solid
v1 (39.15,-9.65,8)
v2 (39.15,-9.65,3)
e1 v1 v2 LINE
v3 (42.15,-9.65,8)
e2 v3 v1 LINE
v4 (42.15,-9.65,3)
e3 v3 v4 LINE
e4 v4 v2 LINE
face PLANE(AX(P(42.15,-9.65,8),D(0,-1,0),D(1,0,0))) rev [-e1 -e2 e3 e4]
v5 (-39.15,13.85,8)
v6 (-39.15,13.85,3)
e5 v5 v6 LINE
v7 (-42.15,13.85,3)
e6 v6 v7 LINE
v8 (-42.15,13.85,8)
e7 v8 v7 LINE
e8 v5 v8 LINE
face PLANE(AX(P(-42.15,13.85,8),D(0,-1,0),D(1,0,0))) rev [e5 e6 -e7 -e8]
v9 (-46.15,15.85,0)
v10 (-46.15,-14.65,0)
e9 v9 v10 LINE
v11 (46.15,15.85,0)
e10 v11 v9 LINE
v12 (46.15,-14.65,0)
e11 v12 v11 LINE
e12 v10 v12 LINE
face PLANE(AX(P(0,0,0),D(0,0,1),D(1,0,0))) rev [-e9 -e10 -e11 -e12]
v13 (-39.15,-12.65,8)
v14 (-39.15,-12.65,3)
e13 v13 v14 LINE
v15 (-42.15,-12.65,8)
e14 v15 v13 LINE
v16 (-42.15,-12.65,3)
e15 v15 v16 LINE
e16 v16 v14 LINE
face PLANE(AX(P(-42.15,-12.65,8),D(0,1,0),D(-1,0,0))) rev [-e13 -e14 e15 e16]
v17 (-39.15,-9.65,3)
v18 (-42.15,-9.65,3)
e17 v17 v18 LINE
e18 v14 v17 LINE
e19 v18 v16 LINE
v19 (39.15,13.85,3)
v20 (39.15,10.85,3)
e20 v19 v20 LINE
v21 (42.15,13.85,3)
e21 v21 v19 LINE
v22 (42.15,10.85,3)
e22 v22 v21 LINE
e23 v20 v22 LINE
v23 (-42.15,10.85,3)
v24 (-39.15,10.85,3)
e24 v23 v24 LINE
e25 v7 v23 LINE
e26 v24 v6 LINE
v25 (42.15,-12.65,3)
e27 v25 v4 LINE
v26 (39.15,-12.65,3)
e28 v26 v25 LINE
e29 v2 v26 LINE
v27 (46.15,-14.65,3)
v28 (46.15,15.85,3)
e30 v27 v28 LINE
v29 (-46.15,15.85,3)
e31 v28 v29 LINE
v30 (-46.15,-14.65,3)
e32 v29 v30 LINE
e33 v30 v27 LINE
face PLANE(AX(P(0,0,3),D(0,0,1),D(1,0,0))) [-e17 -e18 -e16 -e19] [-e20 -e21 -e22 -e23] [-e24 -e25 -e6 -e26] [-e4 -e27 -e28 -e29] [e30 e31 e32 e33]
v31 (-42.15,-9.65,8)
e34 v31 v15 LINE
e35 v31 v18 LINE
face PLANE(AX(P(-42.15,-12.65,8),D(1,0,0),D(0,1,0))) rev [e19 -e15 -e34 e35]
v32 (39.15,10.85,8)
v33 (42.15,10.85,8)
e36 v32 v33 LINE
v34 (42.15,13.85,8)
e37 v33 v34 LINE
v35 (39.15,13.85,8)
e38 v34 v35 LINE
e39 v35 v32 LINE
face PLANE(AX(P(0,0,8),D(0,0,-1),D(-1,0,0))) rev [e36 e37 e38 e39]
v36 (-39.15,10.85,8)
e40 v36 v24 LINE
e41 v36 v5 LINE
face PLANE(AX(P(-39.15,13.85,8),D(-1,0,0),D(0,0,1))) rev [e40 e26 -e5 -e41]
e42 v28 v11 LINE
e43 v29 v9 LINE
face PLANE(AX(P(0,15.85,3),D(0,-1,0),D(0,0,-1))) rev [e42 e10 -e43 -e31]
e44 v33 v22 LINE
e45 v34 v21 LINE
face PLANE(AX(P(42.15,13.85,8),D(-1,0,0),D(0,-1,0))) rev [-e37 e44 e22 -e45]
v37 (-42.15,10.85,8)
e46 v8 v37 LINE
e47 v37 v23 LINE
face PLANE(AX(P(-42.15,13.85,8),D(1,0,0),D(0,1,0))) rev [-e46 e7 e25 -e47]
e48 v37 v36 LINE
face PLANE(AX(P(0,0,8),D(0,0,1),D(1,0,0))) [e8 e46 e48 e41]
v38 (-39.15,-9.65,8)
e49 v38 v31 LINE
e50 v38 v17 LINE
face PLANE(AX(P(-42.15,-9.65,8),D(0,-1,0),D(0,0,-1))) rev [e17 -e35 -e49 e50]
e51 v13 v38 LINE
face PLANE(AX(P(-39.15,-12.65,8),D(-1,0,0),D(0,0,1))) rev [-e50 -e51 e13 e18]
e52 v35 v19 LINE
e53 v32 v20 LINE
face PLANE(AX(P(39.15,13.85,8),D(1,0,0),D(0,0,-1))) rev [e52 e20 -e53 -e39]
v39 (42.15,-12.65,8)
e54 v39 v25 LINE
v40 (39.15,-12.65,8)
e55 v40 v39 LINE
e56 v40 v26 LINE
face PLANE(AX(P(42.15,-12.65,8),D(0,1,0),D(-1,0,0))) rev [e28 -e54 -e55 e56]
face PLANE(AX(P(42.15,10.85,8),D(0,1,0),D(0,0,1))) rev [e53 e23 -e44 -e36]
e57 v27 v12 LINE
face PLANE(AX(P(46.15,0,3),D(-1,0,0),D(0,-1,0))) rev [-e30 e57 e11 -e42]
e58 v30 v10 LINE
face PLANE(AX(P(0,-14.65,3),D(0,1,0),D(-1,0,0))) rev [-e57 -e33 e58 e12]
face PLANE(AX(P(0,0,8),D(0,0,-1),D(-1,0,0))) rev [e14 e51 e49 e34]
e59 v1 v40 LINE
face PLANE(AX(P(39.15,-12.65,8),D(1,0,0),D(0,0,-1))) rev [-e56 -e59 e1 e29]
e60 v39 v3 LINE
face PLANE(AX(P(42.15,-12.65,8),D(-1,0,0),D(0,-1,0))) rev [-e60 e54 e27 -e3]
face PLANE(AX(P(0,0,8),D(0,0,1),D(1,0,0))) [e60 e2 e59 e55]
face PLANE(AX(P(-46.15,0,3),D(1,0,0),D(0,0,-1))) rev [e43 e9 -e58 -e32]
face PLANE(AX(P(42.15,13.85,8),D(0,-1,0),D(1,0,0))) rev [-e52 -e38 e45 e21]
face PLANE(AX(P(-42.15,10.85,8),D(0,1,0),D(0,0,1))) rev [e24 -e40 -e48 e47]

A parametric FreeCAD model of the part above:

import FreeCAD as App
import Part
import Sketcher

V = App.Vector
Q = App.Units.Quantity

doc = App.newDocument("Part")
body = doc.addObject("PartDesign::Body", "Body")

sketch1 = body.newObject("Sketcher::SketchObject", "Sketch")
sketch1.AttachmentSupport = (doc.getObject("XY_Plane"), [""])
sketch1.MapMode = "FlatFace"
sketch1.addGeometry([
    Part.LineSegment(V(-46, 16, 0), V(-46, -15, 0)),
    Part.LineSegment(V(-46, -15, 0), V(46, -15, 0)),
    Part.LineSegment(V(46, -15, 0), V(46, 16, 0)),
    Part.LineSegment(V(46, 16, 0), V(-46, 16, 0)),
], False)
sketch1.addConstraint([
    Sketcher.Constraint("Coincident", 0, 2, 1, 1),
    Sketcher.Constraint("Coincident", 1, 2, 2, 1),
    Sketcher.Constraint("Coincident", 2, 2, 3, 1),
    Sketcher.Constraint("Coincident", 3, 2, 0, 1),
    Sketcher.Constraint("Vertical", 0),
    Sketcher.Constraint("Horizontal", 1),
    Sketcher.Constraint("Vertical", 2),
    Sketcher.Constraint("Horizontal", 3),
    Sketcher.Constraint("DistanceX", 1, 1, 1, 2, Q("92.3 mm")),
    Sketcher.Constraint("DistanceY", 0, 2, 0, 1, Q("30.5 mm")),
    Sketcher.Constraint("DistanceX", 0, 2, -1, 1, Q("46.15 mm")),
    Sketcher.Constraint("DistanceY", 0, 2, -1, 1, Q("14.65 mm")),
])
pad1 = body.newObject("PartDesign::Pad", "Pad")
pad1.Profile = sketch1
pad1.Length = 3

sketch2 = body.newObject("Sketcher::SketchObject", "Sketch001")
sketch2.AttachmentSupport = (doc.getObject("XY_Plane"), [""])
sketch2.MapMode = "FlatFace"
sketch2.AttachmentOffset = App.Placement(V(0, 0, 3), App.Rotation())
sketch2.addGeometry([
    Part.LineSegment(V(-42.1, 13.8, 0), V(-42.1, 10.8, 0)),
    Part.LineSegment(V(-42.1, 10.8, 0), V(-39.1, 10.8, 0)),
    Part.LineSegment(V(-39.1, 10.8, 0), V(-39.1, 13.8, 0)),
    Part.LineSegment(V(-39.1, 13.8, 0), V(-42.1, 13.8, 0)),
    Part.LineSegment(V(39.1, 13.8, 0), V(39.1, 10.8, 0)),
    Part.LineSegment(V(39.1, 10.8, 0), V(42.1, 10.8, 0)),
    Part.LineSegment(V(42.1, 10.8, 0), V(42.1, 13.8, 0)),
    Part.LineSegment(V(42.1, 13.8, 0), V(39.1, 13.8, 0)),
    Part.LineSegment(V(39.1, -9.7, 0), V(39.1, -12.7, 0)),
    Part.LineSegment(V(39.1, -12.7, 0), V(42.1, -12.7, 0)),
    Part.LineSegment(V(42.1, -12.7, 0), V(42.1, -9.7, 0)),
    Part.LineSegment(V(42.1, -9.7, 0), V(39.1, -9.7, 0)),
    Part.LineSegment(V(-42.1, -9.7, 0), V(-42.1, -12.7, 0)),
    Part.LineSegment(V(-42.1, -12.7, 0), V(-39.1, -12.7, 0)),
    Part.LineSegment(V(-39.1, -12.7, 0), V(-39.1, -9.7, 0)),
    Part.LineSegment(V(-39.1, -9.7, 0), V(-42.1, -9.7, 0)),
], False)
sketch2.addConstraint([
    Sketcher.Constraint("Coincident", 0, 2, 1, 1),
    Sketcher.Constraint("Coincident", 1, 2, 2, 1),
    Sketcher.Constraint("Coincident", 2, 2, 3, 1),
    Sketcher.Constraint("Coincident", 3, 2, 0, 1),
    Sketcher.Constraint("Coincident", 4, 2, 5, 1),
    Sketcher.Constraint("Coincident", 5, 2, 6, 1),
    Sketcher.Constraint("Coincident", 6, 2, 7, 1),
    Sketcher.Constraint("Coincident", 7, 2, 4, 1),
    Sketcher.Constraint("Coincident", 8, 2, 9, 1),
    Sketcher.Constraint("Coincident", 9, 2, 10, 1),
    Sketcher.Constraint("Coincident", 10, 2, 11, 1),
    Sketcher.Constraint("Coincident", 11, 2, 8, 1),
    Sketcher.Constraint("Coincident", 12, 2, 13, 1),
    Sketcher.Constraint("Coincident", 13, 2, 14, 1),
    Sketcher.Constraint("Coincident", 14, 2, 15, 1),
    Sketcher.Constraint("Coincident", 15, 2, 12, 1),
    Sketcher.Constraint("Vertical", 0),
    Sketcher.Constraint("Horizontal", 1),
    Sketcher.Constraint("Vertical", 2),
    Sketcher.Constraint("Horizontal", 3),
    Sketcher.Constraint("Vertical", 4),
    Sketcher.Constraint("Horizontal", 5),
    Sketcher.Constraint("Vertical", 6),
    Sketcher.Constraint("Horizontal", 7),
    Sketcher.Constraint("Vertical", 8),
    Sketcher.Constraint("Horizontal", 9),
    Sketcher.Constraint("Vertical", 10),
    Sketcher.Constraint("Horizontal", 11),
    Sketcher.Constraint("Vertical", 12),
    Sketcher.Constraint("Horizontal", 13),
    Sketcher.Constraint("Vertical", 14),
    Sketcher.Constraint("Horizontal", 15),
    Sketcher.Constraint("Symmetric", 1, 2, 4, 2, -2),
    Sketcher.Constraint("Symmetric", 3, 2, 6, 2, -2),
    Sketcher.Constraint("Symmetric", 9, 2, 12, 2, -2),
    Sketcher.Constraint("Symmetric", 11, 2, 14, 2, -2),
    Sketcher.Constraint("Vertical", 7, 2, 8, 2),
    Sketcher.Constraint("Vertical", 6, 2, 9, 2),
    Sketcher.Constraint("Equal", 15, 0),
    Sketcher.Constraint("Equal", 6, 8),
    Sketcher.Constraint("DistanceX", 1, 1, 1, 2, Q("3 mm")),
    Sketcher.Constraint("DistanceX", 1, 2, 4, 2, Q("78.3 mm")),
    Sketcher.Constraint("DistanceY", 8, 2, 4, 2, Q("23.5 mm")),
    Sketcher.Constraint("DistanceY", -1, 1, 0, 2, Q("10.85 mm")),
])
pad2 = body.newObject("PartDesign::Pad", "Pad001")
pad2.Profile = sketch2
pad2.Length = 5

doc.recompute()
